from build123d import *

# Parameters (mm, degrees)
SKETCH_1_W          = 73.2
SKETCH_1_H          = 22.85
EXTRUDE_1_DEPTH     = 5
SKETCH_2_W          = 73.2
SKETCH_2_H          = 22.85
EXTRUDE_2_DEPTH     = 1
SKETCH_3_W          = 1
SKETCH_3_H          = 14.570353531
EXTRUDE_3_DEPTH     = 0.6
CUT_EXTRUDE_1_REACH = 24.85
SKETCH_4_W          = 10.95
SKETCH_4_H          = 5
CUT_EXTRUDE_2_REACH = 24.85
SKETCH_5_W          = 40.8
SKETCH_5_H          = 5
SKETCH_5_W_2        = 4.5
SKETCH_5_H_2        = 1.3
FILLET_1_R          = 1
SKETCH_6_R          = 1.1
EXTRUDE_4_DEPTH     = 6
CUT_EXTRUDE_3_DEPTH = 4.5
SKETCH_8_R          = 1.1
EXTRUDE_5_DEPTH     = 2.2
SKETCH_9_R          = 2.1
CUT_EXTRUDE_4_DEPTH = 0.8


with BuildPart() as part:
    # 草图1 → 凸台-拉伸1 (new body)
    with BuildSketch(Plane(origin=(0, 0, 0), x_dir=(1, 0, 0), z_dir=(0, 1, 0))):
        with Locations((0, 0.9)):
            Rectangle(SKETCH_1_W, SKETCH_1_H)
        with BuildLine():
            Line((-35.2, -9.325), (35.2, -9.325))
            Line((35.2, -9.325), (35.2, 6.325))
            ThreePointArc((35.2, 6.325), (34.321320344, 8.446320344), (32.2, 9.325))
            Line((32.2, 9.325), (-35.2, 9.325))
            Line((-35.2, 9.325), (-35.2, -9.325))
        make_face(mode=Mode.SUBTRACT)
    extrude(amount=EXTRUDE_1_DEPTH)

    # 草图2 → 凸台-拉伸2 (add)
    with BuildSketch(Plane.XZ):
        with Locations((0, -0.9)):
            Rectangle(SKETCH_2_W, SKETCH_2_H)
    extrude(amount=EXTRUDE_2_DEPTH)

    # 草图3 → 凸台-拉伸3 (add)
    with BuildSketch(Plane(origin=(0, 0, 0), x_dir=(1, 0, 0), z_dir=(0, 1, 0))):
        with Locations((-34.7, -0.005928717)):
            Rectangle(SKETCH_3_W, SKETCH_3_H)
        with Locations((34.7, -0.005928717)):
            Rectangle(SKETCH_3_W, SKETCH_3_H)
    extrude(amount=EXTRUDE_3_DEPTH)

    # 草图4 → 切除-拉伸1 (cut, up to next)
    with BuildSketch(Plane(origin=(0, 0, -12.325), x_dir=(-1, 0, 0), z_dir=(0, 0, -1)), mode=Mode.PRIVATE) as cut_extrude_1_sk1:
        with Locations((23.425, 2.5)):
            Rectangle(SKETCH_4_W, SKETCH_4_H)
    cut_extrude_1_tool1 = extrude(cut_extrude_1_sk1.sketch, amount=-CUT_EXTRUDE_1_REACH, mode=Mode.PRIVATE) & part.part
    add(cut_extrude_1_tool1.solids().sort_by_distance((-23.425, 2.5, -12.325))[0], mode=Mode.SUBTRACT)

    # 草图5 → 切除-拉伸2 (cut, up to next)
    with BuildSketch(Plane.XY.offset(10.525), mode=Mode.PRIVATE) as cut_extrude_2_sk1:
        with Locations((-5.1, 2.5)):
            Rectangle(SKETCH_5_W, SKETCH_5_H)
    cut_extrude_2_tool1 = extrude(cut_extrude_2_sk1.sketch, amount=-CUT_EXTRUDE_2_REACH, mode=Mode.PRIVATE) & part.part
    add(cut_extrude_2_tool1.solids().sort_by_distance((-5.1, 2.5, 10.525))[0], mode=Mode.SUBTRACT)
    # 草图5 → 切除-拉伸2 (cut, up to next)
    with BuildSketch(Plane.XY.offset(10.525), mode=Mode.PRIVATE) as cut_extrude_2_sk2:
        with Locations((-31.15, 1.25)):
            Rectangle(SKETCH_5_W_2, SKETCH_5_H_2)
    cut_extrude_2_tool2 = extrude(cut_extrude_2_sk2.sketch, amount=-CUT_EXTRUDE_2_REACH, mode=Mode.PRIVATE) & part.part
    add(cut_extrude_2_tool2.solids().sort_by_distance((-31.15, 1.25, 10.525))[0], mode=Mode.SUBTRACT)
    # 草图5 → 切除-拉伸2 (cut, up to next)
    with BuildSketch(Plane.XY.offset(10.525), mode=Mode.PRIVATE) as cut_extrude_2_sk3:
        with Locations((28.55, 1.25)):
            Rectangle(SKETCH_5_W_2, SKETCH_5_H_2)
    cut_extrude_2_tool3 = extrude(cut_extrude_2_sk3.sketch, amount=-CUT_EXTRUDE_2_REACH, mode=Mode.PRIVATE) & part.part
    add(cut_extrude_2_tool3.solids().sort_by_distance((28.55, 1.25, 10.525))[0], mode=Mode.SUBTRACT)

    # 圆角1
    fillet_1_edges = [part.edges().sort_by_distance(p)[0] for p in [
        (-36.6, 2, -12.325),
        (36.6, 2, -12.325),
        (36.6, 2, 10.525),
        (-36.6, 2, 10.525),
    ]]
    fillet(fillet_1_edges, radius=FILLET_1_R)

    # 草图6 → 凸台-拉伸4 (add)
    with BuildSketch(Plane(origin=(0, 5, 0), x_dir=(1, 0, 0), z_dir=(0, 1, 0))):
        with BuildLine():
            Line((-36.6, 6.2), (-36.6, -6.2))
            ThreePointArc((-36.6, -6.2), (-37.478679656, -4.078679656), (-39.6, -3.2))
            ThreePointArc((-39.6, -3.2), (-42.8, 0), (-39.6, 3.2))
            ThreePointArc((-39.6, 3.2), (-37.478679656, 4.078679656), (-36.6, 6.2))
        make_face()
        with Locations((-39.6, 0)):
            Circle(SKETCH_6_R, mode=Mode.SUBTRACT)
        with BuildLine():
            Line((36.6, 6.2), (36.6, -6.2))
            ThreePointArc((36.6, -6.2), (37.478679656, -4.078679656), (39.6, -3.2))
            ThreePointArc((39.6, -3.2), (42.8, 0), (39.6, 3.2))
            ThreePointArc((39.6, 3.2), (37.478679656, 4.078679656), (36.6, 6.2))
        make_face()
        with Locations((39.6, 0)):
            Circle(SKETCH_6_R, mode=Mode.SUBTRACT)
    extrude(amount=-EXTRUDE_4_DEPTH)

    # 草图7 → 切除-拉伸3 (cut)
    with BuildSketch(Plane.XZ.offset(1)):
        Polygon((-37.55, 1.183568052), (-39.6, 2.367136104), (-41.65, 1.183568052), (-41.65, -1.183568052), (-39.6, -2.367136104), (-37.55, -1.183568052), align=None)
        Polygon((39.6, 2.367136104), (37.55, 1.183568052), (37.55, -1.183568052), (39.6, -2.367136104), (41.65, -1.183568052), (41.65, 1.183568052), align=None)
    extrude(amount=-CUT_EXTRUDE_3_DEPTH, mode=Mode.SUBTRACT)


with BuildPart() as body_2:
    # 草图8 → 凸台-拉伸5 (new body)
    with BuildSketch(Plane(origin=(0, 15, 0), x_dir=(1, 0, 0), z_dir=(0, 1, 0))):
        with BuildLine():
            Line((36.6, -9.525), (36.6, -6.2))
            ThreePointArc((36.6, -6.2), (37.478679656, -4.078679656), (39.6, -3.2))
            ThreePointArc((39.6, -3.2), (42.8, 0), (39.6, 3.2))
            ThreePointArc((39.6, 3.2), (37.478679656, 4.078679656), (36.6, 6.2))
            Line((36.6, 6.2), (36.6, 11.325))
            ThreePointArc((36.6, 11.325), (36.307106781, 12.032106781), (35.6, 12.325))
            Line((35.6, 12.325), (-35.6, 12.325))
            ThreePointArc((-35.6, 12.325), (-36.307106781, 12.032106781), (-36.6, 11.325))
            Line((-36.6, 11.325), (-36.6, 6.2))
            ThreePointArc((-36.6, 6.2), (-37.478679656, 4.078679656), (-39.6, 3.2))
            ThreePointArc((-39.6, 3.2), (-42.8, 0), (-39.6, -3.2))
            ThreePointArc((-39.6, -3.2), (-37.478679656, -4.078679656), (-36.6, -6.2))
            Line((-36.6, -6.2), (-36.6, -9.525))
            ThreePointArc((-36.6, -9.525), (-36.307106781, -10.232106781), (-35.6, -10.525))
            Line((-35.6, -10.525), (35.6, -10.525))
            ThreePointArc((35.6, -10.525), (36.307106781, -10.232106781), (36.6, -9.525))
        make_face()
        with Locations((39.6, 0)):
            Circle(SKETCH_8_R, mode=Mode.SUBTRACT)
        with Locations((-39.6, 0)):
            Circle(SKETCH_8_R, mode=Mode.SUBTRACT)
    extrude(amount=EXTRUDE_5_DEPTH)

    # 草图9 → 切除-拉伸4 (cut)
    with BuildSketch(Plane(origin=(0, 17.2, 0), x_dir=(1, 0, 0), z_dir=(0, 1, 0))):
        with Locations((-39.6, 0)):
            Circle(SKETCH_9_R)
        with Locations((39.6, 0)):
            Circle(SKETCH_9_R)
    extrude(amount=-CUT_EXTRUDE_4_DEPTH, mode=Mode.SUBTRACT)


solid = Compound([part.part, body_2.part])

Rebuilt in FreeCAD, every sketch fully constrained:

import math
import FreeCAD as App
import Part
import Sketcher
from FreeCAD import Vector
Q = App.Units.Quantity


def edges_at(feature, points):
    """Names of the edges that pass closest to the given points."""
    edges = feature.Shape.Edges
    near = lambda p: min(range(len(edges)), key=lambda i: edges[i].distToShape(Part.Vertex(*p))[0])
    return sorted({f"Edge{near(p) + 1}" for p in points})

doc = App.newDocument("Part")
body = doc.addObject("PartDesign::Body", "Body")

sketch1 = body.newObject("Sketcher::SketchObject", "Sketch")
sketch1.AttachmentSupport = (doc.getObject("XZ_Plane"), [""])
sketch1.MapMode = "FlatFace"
sketch1.addGeometry(Part.LineSegment(Vector(-36.6, -12.325, 0), Vector(-36.6, 10.525, 0)), False)
sketch1.addGeometry(Part.LineSegment(Vector(-36.6, 10.525, 0), Vector(36.6, 10.525, 0)), False)
sketch1.addGeometry(Part.LineSegment(Vector(36.6, 10.525, 0), Vector(36.6, -12.325, 0)), False)
sketch1.addGeometry(Part.LineSegment(Vector(36.6, -12.325, 0), Vector(-36.6, -12.325, 0)), False)
sketch1.addGeometry(Part.LineSegment(Vector(35.2, 9.325, 0), Vector(-35.2, 9.325, 0)), False)
sketch1.addGeometry(Part.LineSegment(Vector(-35.2, 9.325, 0), Vector(-35.2, -9.325, 0)), False)
sketch1.addGeometry(Part.LineSegment(Vector(-35.2, -9.325, 0), Vector(32.2, -9.325, 0)), False)
sketch1.addGeometry(Part.ArcOfCircle(Part.Circle(Vector(32.2, -6.325, 0), Vector(0, 0, 1), 3), math.radians(-90), math.radians(0)), False)
sketch1.addGeometry(Part.LineSegment(Vector(35.2, -6.325, 0), Vector(35.2, 9.325, 0)), False)
sketch1.addConstraint(Sketcher.Constraint("Coincident", 0, 2, 1, 1))
sketch1.addConstraint(Sketcher.Constraint("Coincident", 1, 2, 2, 1))
sketch1.addConstraint(Sketcher.Constraint("Coincident", 2, 2, 3, 1))
sketch1.addConstraint(Sketcher.Constraint("Coincident", 3, 2, 0, 1))
sketch1.addConstraint(Sketcher.Constraint("Coincident", 4, 2, 5, 1))
sketch1.addConstraint(Sketcher.Constraint("Coincident", 5, 2, 6, 1))
sketch1.addConstraint(Sketcher.Constraint("Tangent", 6, 2, 7, 1))
sketch1.addConstraint(Sketcher.Constraint("Tangent", 7, 2, 8, 1))
sketch1.addConstraint(Sketcher.Constraint("Coincident", 8, 2, 4, 1))
sketch1.addConstraint(Sketcher.Constraint("Vertical", 0))
sketch1.addConstraint(Sketcher.Constraint("Horizontal", 1))
sketch1.addConstraint(Sketcher.Constraint("Vertical", 2))
sketch1.addConstraint(Sketcher.Constraint("Horizontal", 3))
sketch1.addConstraint(Sketcher.Constraint("Horizontal", 4))
sketch1.addConstraint(Sketcher.Constraint("Vertical", 5))
sketch1.addConstraint(Sketcher.Constraint("Horizontal", 6))
sketch1.addConstraint(Sketcher.Constraint("Vertical", 8))
sketch1.addConstraint(Sketcher.Constraint("Symmetric", 5, 2, 8, 2, -1, 1))
sketch1.addConstraint(Sketcher.Constraint("Radius", 7, Q("3 mm")))
sketch1.addConstraint(Sketcher.Constraint("DistanceX", 1, 1, 1, 2, Q("73.2 mm")))
sketch1.addConstraint(Sketcher.Constraint("DistanceX", 4, 2, 4, 1, Q("70.4 mm")))
sketch1.addConstraint(Sketcher.Constraint("DistanceY", 2, 2, 7, 3, Q("6 mm")))
sketch1.addConstraint(Sketcher.Constraint("DistanceY", 0, 1, 0, 2, Q("22.85 mm")))
sketch1.addConstraint(Sketcher.Constraint("DistanceY", 5, 2, 5, 1, Q("18.65 mm")))
sketch1.addConstraint(Sketcher.Constraint("DistanceX", 0, 2, -1, 1, Q("36.6 mm")))
pad1 = body.newObject("PartDesign::Pad", "Pad")
pad1.Profile = sketch1
pad1.Length = 5
pad1.Reversed = True

sketch2 = body.newObject("Sketcher::SketchObject", "Sketch001")
sketch2.AttachmentSupport = (doc.getObject("XZ_Plane"), [""])
sketch2.MapMode = "FlatFace"
sketch2.addGeometry(Part.LineSegment(Vector(-36.6, 10.525, 0), Vector(-36.6, -12.325, 0)), False)
sketch2.addGeometry(Part.LineSegment(Vector(-36.6, -12.325, 0), Vector(36.6, -12.325, 0)), False)
sketch2.addGeometry(Part.LineSegment(Vector(36.6, -12.325, 0), Vector(36.6, 10.525, 0)), False)
sketch2.addGeometry(Part.LineSegment(Vector(36.6, 10.525, 0), Vector(-36.6, 10.525, 0)), False)
sketch2.addConstraint(Sketcher.Constraint("Coincident", 0, 2, 1, 1))
sketch2.addConstraint(Sketcher.Constraint("Coincident", 1, 2, 2, 1))
sketch2.addConstraint(Sketcher.Constraint("Coincident", 2, 2, 3, 1))
sketch2.addConstraint(Sketcher.Constraint("Coincident", 3, 2, 0, 1))
sketch2.addConstraint(Sketcher.Constraint("Vertical", 0))
sketch2.addConstraint(Sketcher.Constraint("Horizontal", 1))
sketch2.addConstraint(Sketcher.Constraint("Vertical", 2))
sketch2.addConstraint(Sketcher.Constraint("Horizontal", 3))
sketch2.addConstraint(Sketcher.Constraint("DistanceX", 1, 1, 1, 2, Q("73.2 mm")))
sketch2.addConstraint(Sketcher.Constraint("DistanceY", 0, 2, 0, 1, Q("22.85 mm")))
sketch2.addConstraint(Sketcher.Constraint("DistanceX", 0, 2, -1, 1, Q("36.6 mm")))
sketch2.addConstraint(Sketcher.Constraint("DistanceY", 0, 2, -1, 1, Q("12.325 mm")))
pad2 = body.newObject("PartDesign::Pad", "Pad001")
pad2.Profile = sketch2
pad2.Length = 1

sketch3 = body.newObject("Sketcher::SketchObject", "Sketch002")
sketch3.AttachmentSupport = (doc.getObject("XZ_Plane"), [""])
sketch3.MapMode = "FlatFace"
sketch3.addGeometry(Part.LineSegment(Vector(-35.2, -7.279248, 0), Vector(-35.2, 7.291105, 0)), False)
sketch3.addGeometry(Part.LineSegment(Vector(-35.2, 7.291105, 0), Vector(-34.2, 7.291105, 0)), False)
sketch3.addGeometry(Part.LineSegment(Vector(-34.2, 7.291105, 0), Vector(-34.2, -7.279248, 0)), False)
sketch3.addGeometry(Part.LineSegment(Vector(-34.2, -7.279248, 0), Vector(-35.2, -7.279248, 0)), False)
sketch3.addGeometry(Part.LineSegment(Vector(34.2, -7.279248, 0), Vector(34.2, 7.291105, 0)), False)
sketch3.addGeometry(Part.LineSegment(Vector(34.2, 7.291105, 0), Vector(35.2, 7.291105, 0)), False)
sketch3.addGeometry(Part.LineSegment(Vector(35.2, 7.291105, 0), Vector(35.2, -7.279248, 0)), False)
sketch3.addGeometry(Part.LineSegment(Vector(35.2, -7.279248, 0), Vector(34.2, -7.279248, 0)), False)
sketch3.addConstraint(Sketcher.Constraint("Coincident", 0, 2, 1, 1))
sketch3.addConstraint(Sketcher.Constraint("Coincident", 1, 2, 2, 1))
sketch3.addConstraint(Sketcher.Constraint("Coincident", 2, 2, 3, 1))
sketch3.addConstraint(Sketcher.Constraint("Coincident", 3, 2, 0, 1))
sketch3.addConstraint(Sketcher.Constraint("Coincident", 4, 2, 5, 1))
sketch3.addConstraint(Sketcher.Constraint("Coincident", 5, 2, 6, 1))
sketch3.addConstraint(Sketcher.Constraint("Coincident", 6, 2, 7, 1))
sketch3.addConstraint(Sketcher.Constraint("Coincident", 7, 2, 4, 1))
sketch3.addConstraint(Sketcher.Constraint("Vertical", 0))
sketch3.addConstraint(Sketcher.Constraint("Horizontal", 1))
sketch3.addConstraint(Sketcher.Constraint("Vertical", 2))
sketch3.addConstraint(Sketcher.Constraint("Horizontal", 3))
sketch3.addConstraint(Sketcher.Constraint("Vertical", 4))
sketch3.addConstraint(Sketcher.Constraint("Horizontal", 5))
sketch3.addConstraint(Sketcher.Constraint("Vertical", 6))
sketch3.addConstraint(Sketcher.Constraint("Horizontal", 7))
sketch3.addConstraint(Sketcher.Constraint("Symmetric", 1, 2, 4, 2, -2))
sketch3.addConstraint(Sketcher.Constraint("Symmetric", 3, 2, 6, 2, -2))
sketch3.addConstraint(Sketcher.Constraint("DistanceX", 1, 1, 1, 2, Q("1 mm")))
sketch3.addConstraint(Sketcher.Constraint("DistanceX", 0, 2, -1, 1, Q("35.2 mm")))
sketch3.addConstraint(Sketcher.Constraint("DistanceY", 0, 1, 0, 2, Q("14.570354 mm")))
sketch3.addConstraint(Sketcher.Constraint("DistanceY", 2, 2, -1, 1, Q("7.279248 mm")))
pad3 = body.newObject("PartDesign::Pad", "Pad002")
pad3.Profile = sketch3
pad3.Length = 0.6
pad3.Reversed = True

sketch4 = body.newObject("Sketcher::SketchObject", "Sketch003")
sketch4.AttachmentSupport = (doc.getObject("XY_Plane"), [""])
sketch4.MapMode = "FlatFace"
sketch4.AttachmentOffset = App.Placement(Vector(0, 0, -12.325), App.Rotation())
sketch4.addGeometry(Part.LineSegment(Vector(-17.95, 5, 0), Vector(-17.95, 0, 0)), False)
sketch4.addGeometry(Part.LineSegment(Vector(-17.95, 0, 0), Vector(-28.9, 0, 0)), False)
sketch4.addGeometry(Part.LineSegment(Vector(-28.9, 0, 0), Vector(-28.9, 5, 0)), False)
sketch4.addGeometry(Part.LineSegment(Vector(-28.9, 5, 0), Vector(-17.95, 5, 0)), False)
sketch4.addConstraint(Sketcher.Constraint("Coincident", 0, 2, 1, 1))
sketch4.addConstraint(Sketcher.Constraint("Coincident", 1, 2, 2, 1))
sketch4.addConstraint(Sketcher.Constraint("Coincident", 2, 2, 3, 1))
sketch4.addConstraint(Sketcher.Constraint("Coincident", 3, 2, 0, 1))
sketch4.addConstraint(Sketcher.Constraint("Vertical", 0))
sketch4.addConstraint(Sketcher.Constraint("Horizontal", 1))
sketch4.addConstraint(Sketcher.Constraint("Vertical", 2))
sketch4.addConstraint(Sketcher.Constraint("Horizontal", 3))
sketch4.addConstraint(Sketcher.Constraint("PointOnObject", 0, 2, -1))
sketch4.addConstraint(Sketcher.Constraint("DistanceY", 0, 2, 0, 1, Q("5 mm")))
sketch4.addConstraint(Sketcher.Constraint("DistanceX", 1, 2, 1, 1, Q("10.95 mm")))
sketch4.addConstraint(Sketcher.Constraint("DistanceX", 1, 2, -1, 1, Q("28.9 mm")))
pocket1 = body.newObject("PartDesign::Pocket", "Pocket")
pocket1.Profile = sketch4
pocket1.Type = "UpToFirst"
pocket1.Reversed = True

sketch5 = body.newObject("Sketcher::SketchObject", "Sketch004")
sketch5.AttachmentSupport = (doc.getObject("XY_Plane"), [""])
sketch5.MapMode = "FlatFace"
sketch5.AttachmentOffset = App.Placement(Vector(0, 0, 10.525), App.Rotation())
sketch5.addGeometry(Part.LineSegment(Vector(-25.5, 5, 0), Vector(-25.5, 0, 0)), False)
sketch5.addGeometry(Part.LineSegment(Vector(-25.5, 0, 0), Vector(15.3, 0, 0)), False)
sketch5.addGeometry(Part.LineSegment(Vector(15.3, 0, 0), Vector(15.3, 5, 0)), False)
sketch5.addGeometry(Part.LineSegment(Vector(15.3, 5, 0), Vector(-25.5, 5, 0)), False)
sketch5.addConstraint(Sketcher.Constraint("Coincident", 0, 2, 1, 1))
sketch5.addConstraint(Sketcher.Constraint("Coincident", 1, 2, 2, 1))
sketch5.addConstraint(Sketcher.Constraint("Coincident", 2, 2, 3, 1))
sketch5.addConstraint(Sketcher.Constraint("Coincident", 3, 2, 0, 1))
sketch5.addConstraint(Sketcher.Constraint("Vertical", 0))
sketch5.addConstraint(Sketcher.Constraint("Horizontal", 1))
sketch5.addConstraint(Sketcher.Constraint("Vertical", 2))
sketch5.addConstraint(Sketcher.Constraint("Horizontal", 3))
sketch5.addConstraint(Sketcher.Constraint("PointOnObject", 0, 2, -1))
sketch5.addConstraint(Sketcher.Constraint("DistanceY", 0, 2, 0, 1, Q("5 mm")))
sketch5.addConstraint(Sketcher.Constraint("DistanceX", 1, 1, 1, 2, Q("40.8 mm")))
sketch5.addConstraint(Sketcher.Constraint("DistanceX", 0, 2, -1, 1, Q("25.5 mm")))
pocket2 = body.newObject("PartDesign::Pocket", "Pocket001")
pocket2.Profile = sketch5
pocket2.Type = "UpToFirst"

sketch6 = body.newObject("Sketcher::SketchObject", "Sketch005")
sketch6.AttachmentSupport = (doc.getObject("XY_Plane"), [""])
sketch6.MapMode = "FlatFace"
sketch6.AttachmentOffset = App.Placement(Vector(0, 0, 10.525), App.Rotation())
sketch6.addGeometry(Part.LineSegment(Vector(-33.4, 1.9, 0), Vector(-33.4, 0.6, 0)), False)
sketch6.addGeometry(Part.LineSegment(Vector(-33.4, 0.6, 0), Vector(-28.9, 0.6, 0)), False)
sketch6.addGeometry(Part.LineSegment(Vector(-28.9, 0.6, 0), Vector(-28.9, 1.9, 0)), False)
sketch6.addGeometry(Part.LineSegment(Vector(-28.9, 1.9, 0), Vector(-33.4, 1.9, 0)), False)
sketch6.addConstraint(Sketcher.Constraint("Coincident", 0, 2, 1, 1))
sketch6.addConstraint(Sketcher.Constraint("Coincident", 1, 2, 2, 1))
sketch6.addConstraint(Sketcher.Constraint("Coincident", 2, 2, 3, 1))
sketch6.addConstraint(Sketcher.Constraint("Coincident", 3, 2, 0, 1))
sketch6.addConstraint(Sketcher.Constraint("Vertical", 0))
sketch6.addConstraint(Sketcher.Constraint("Horizontal", 1))
sketch6.addConstraint(Sketcher.Constraint("Vertical", 2))
sketch6.addConstraint(Sketcher.Constraint("Horizontal", 3))
sketch6.addConstraint(Sketcher.Constraint("DistanceX", 1, 1, 1, 2, Q("4.5 mm")))
sketch6.addConstraint(Sketcher.Constraint("DistanceY", 0, 2, 0, 1, Q("1.3 mm")))
sketch6.addConstraint(Sketcher.Constraint("DistanceX", 0, 2, -1, 1, Q("33.4 mm")))
sketch6.addConstraint(Sketcher.Constraint("DistanceY", -1, 1, 0, 2, Q("0.6 mm")))
pocket3 = body.newObject("PartDesign::Pocket", "Pocket002")
pocket3.Profile = sketch6
pocket3.Type = "UpToFirst"

sketch7 = body.newObject("Sketcher::SketchObject", "Sketch006")
sketch7.AttachmentSupport = (doc.getObject("XY_Plane"), [""])
sketch7.MapMode = "FlatFace"
sketch7.AttachmentOffset = App.Placement(Vector(0, 0, 10.525), App.Rotation())
sketch7.addGeometry(Part.LineSegment(Vector(26.3, 1.9, 0), Vector(26.3, 0.6, 0)), False)
sketch7.addGeometry(Part.LineSegment(Vector(26.3, 0.6, 0), Vector(30.8, 0.6, 0)), False)
sketch7.addGeometry(Part.LineSegment(Vector(30.8, 0.6, 0), Vector(30.8, 1.9, 0)), False)
sketch7.addGeometry(Part.LineSegment(Vector(30.8, 1.9, 0), Vector(26.3, 1.9, 0)), False)
sketch7.addConstraint(Sketcher.Constraint("Coincident", 0, 2, 1, 1))
sketch7.addConstraint(Sketcher.Constraint("Coincident", 1, 2, 2, 1))
sketch7.addConstraint(Sketcher.Constraint("Coincident", 2, 2, 3, 1))
sketch7.addConstraint(Sketcher.Constraint("Coincident", 3, 2, 0, 1))
sketch7.addConstraint(Sketcher.Constraint("Vertical", 0))
sketch7.addConstraint(Sketcher.Constraint("Horizontal", 1))
sketch7.addConstraint(Sketcher.Constraint("Vertical", 2))
sketch7.addConstraint(Sketcher.Constraint("Horizontal", 3))
sketch7.addConstraint(Sketcher.Constraint("DistanceX", 1, 1, 1, 2, Q("4.5 mm")))
sketch7.addConstraint(Sketcher.Constraint("DistanceY", 0, 2, 0, 1, Q("1.3 mm")))
sketch7.addConstraint(Sketcher.Constraint("DistanceX", -1, 1, 0, 2, Q("26.3 mm")))
sketch7.addConstraint(Sketcher.Constraint("DistanceY", -1, 1, 0, 2, Q("0.6 mm")))
pocket4 = body.newObject("PartDesign::Pocket", "Pocket003")
pocket4.Profile = sketch7
pocket4.Type = "UpToFirst"
doc.recompute()

fillet = body.newObject("PartDesign::Fillet", "Fillet")
fillet.Base = (pocket4, edges_at(pocket4, [
    (-36.6, 2, -12.325),
    (36.6, 2, -12.325),
    (36.6, 2, 10.525),
    (-36.6, 2, 10.525),
]))
fillet.Radius = 1

sketch8 = body.newObject("Sketcher::SketchObject", "Sketch007")
sketch8.AttachmentSupport = (doc.getObject("XZ_Plane"), [""])
sketch8.MapMode = "FlatFace"
sketch8.AttachmentOffset = App.Placement(Vector(0, 0, -5), App.Rotation())
sketch8.addGeometry(Part.LineSegment(Vector(-36.6, 6.2, 0), Vector(-36.6, -6.2, 0)), False)
sketch8.addGeometry(Part.ArcOfCircle(Part.Circle(Vector(-39.6, -6.2, 0), Vector(0, 0, 1), 3), math.radians(0), math.radians(90)), False)
sketch8.addGeometry(Part.ArcOfCircle(Part.Circle(Vector(-39.6, 0, 0), Vector(0, 0, 1), 3.2), math.radians(90), math.radians(270)), False)
sketch8.addGeometry(Part.ArcOfCircle(Part.Circle(Vector(-39.6, 6.2, 0), Vector(0, 0, 1), 3), math.radians(-90), math.radians(0)), False)
sketch8.addGeometry(Part.Circle(Vector(-39.6, 0, 0), Vector(0, 0, 1), 1.1), False)
sketch8.addGeometry(Part.LineSegment(Vector(36.6, -6.2, 0), Vector(36.6, 6.2, 0)), False)
sketch8.addGeometry(Part.ArcOfCircle(Part.Circle(Vector(39.6, 6.2, 0), Vector(0, 0, 1), 3), math.radians(180), math.radians(270)), False)
sketch8.addGeometry(Part.ArcOfCircle(Part.Circle(Vector(39.6, 0, 0), Vector(0, 0, 1), 3.2), math.radians(-90), math.radians(90)), False)
sketch8.addGeometry(Part.ArcOfCircle(Part.Circle(Vector(39.6, -6.2, 0), Vector(0, 0, 1), 3), math.radians(90), math.radians(180)), False)
sketch8.addGeometry(Part.Circle(Vector(39.6, 0, 0), Vector(0, 0, 1), 1.1), False)
sketch8.addConstraint(Sketcher.Constraint("Tangent", 0, 2, 1, 1))
sketch8.addConstraint(Sketcher.Constraint("Tangent", 1, 2, 2, 2))
sketch8.addConstraint(Sketcher.Constraint("Tangent", 2, 1, 3, 1))
sketch8.addConstraint(Sketcher.Constraint("Tangent", 3, 2, 0, 1))
sketch8.addConstraint(Sketcher.Constraint("Tangent", 5, 2, 6, 1))
sketch8.addConstraint(Sketcher.Constraint("Tangent", 6, 2, 7, 2))
sketch8.addConstraint(Sketcher.Constraint("Tangent", 7, 1, 8, 1))
sketch8.addConstraint(Sketcher.Constraint("Tangent", 8, 2, 5, 1))
sketch8.addConstraint(Sketcher.Constraint("Vertical", 0))
sketch8.addConstraint(Sketcher.Constraint("Vertical", 5))
sketch8.addConstraint(Sketcher.Constraint("Coincident", 4, 3, 2, 3))
sketch8.addConstraint(Sketcher.Constraint("Coincident", 9, 3, 7, 3))
sketch8.addConstraint(Sketcher.Constraint("Equal", 1, 3))
sketch8.addConstraint(Sketcher.Constraint("Equal", 3, 6))
sketch8.addConstraint(Sketcher.Constraint("Equal", 2, 7))
sketch8.addConstraint(Sketcher.Constraint("Equal", 6, 8))
sketch8.addConstraint(Sketcher.Constraint("Equal", 4, 9))
sketch8.addConstraint(Sketcher.Constraint("Symmetric", 1, 3, 6, 3, -1, 1))
sketch8.addConstraint(Sketcher.Constraint("Symmetric", 2, 3, 7, 3, -2))
sketch8.addConstraint(Sketcher.Constraint("Vertical", 1, 3, 2, 3))
sketch8.addConstraint(Sketcher.Constraint("Radius", 1, Q("3 mm")))
sketch8.addConstraint(Sketcher.Constraint("Diameter", 4, Q("2.2 mm")))
sketch8.addConstraint(Sketcher.Constraint("Radius", 2, Q("3.2 mm")))
sketch8.addConstraint(Sketcher.Constraint("DistanceX", 1, 3, -1, 1, Q("39.6 mm")))
pad4 = body.newObject("PartDesign::Pad", "Pad003")
pad4.Profile = sketch8
pad4.Length = 6

sketch9 = body.newObject("Sketcher::SketchObject", "Sketch008")
sketch9.AttachmentSupport = (doc.getObject("XZ_Plane"), [""])
sketch9.MapMode = "FlatFace"
sketch9.AttachmentOffset = App.Placement(Vector(0, 0, 1), App.Rotation())
sketch9.addGeometry(Part.LineSegment(Vector(-37.55, 1.183568, 0), Vector(-39.6, 2.367136, 0)), False)
sketch9.addGeometry(Part.LineSegment(Vector(-39.6, 2.367136, 0), Vector(-41.65, 1.183568, 0)), False)
sketch9.addGeometry(Part.LineSegment(Vector(-41.65, 1.183568, 0), Vector(-41.65, -1.183568, 0)), False)
sketch9.addGeometry(Part.LineSegment(Vector(-41.65, -1.183568, 0), Vector(-39.6, -2.367136, 0)), False)
sketch9.addGeometry(Part.LineSegment(Vector(-39.6, -2.367136, 0), Vector(-37.55, -1.183568, 0)), False)
sketch9.addGeometry(Part.LineSegment(Vector(-37.55, -1.183568, 0), Vector(-37.55, 1.183568, 0)), False)
sketch9.addGeometry(Part.LineSegment(Vector(39.6, 2.367136, 0), Vector(37.55, 1.183568, 0)), False)
sketch9.addGeometry(Part.LineSegment(Vector(37.55, 1.183568, 0), Vector(37.55, -1.183568, 0)), False)
sketch9.addGeometry(Part.LineSegment(Vector(37.55, -1.183568, 0), Vector(39.6, -2.367136, 0)), False)
sketch9.addGeometry(Part.LineSegment(Vector(39.6, -2.367136, 0), Vector(41.65, -1.183568, 0)), False)
sketch9.addGeometry(Part.LineSegment(Vector(41.65, -1.183568, 0), Vector(41.65, 1.183568, 0)), False)
sketch9.addGeometry(Part.LineSegment(Vector(41.65, 1.183568, 0), Vector(39.6, 2.367136, 0)), False)
sketch9.addConstraint(Sketcher.Constraint("Coincident", 0, 2, 1, 1))
sketch9.addConstraint(Sketcher.Constraint("Coincident", 1, 2, 2, 1))
sketch9.addConstraint(Sketcher.Constraint("Coincident", 2, 2, 3, 1))
sketch9.addConstraint(Sketcher.Constraint("Coincident", 3, 2, 4, 1))
sketch9.addConstraint(Sketcher.Constraint("Coincident", 4, 2, 5, 1))
sketch9.addConstraint(Sketcher.Constraint("Coincident", 5, 2, 0, 1))
sketch9.addConstraint(Sketcher.Constraint("Coincident", 6, 2, 7, 1))
sketch9.addConstraint(Sketcher.Constraint("Coincident", 7, 2, 8, 1))
sketch9.addConstraint(Sketcher.Constraint("Coincident", 8, 2, 9, 1))
sketch9.addConstraint(Sketcher.Constraint("Coincident", 9, 2, 10, 1))
sketch9.addConstraint(Sketcher.Constraint("Coincident", 10, 2, 11, 1))
sketch9.addConstraint(Sketcher.Constraint("Coincident", 11, 2, 6, 1))
sketch9.addConstraint(Sketcher.Constraint("Vertical", 2))
sketch9.addConstraint(Sketcher.Constraint("Vertical", 5))
sketch9.addConstraint(Sketcher.Constraint("Vertical", 7))
sketch9.addConstraint(Sketcher.Constraint("Vertical", 10))
sketch9.addConstraint(Sketcher.Constraint("Symmetric", 4, 2, 6, 2, -1, 1))
sketch9.addConstraint(Sketcher.Constraint("Symmetric", 0, 2, 8, 2, -1, 1))
sketch9.addConstraint(Sketcher.Constraint("Symmetric", 1, 2, 9, 2, -1, 1))
sketch9.addConstraint(Sketcher.Constraint("Symmetric", 3, 2, 11, 2, -1, 1))
sketch9.addConstraint(Sketcher.Constraint("Symmetric", 3, 2, 8, 2, -2))
sketch9.addConstraint(Sketcher.Constraint("Parallel", 0, 3))
sketch9.addConstraint(Sketcher.Constraint("Parallel", 1, 4))
sketch9.addConstraint(Sketcher.Constraint("Parallel", 3, 8))
sketch9.addConstraint(Sketcher.Constraint("Parallel", 8, 11))
sketch9.addConstraint(Sketcher.Constraint("Horizontal", 2, 2, 4, 2))
sketch9.addConstraint(Sketcher.Constraint("Horizontal", 1, 2, 5, 2))
sketch9.addConstraint(Sketcher.Constraint("Angle", 0, Q("150 deg")))
sketch9.addConstraint(Sketcher.Constraint("DistanceX", 0, 2, -1, 1, Q("39.6 mm")))
sketch9.addConstraint(Sketcher.Constraint("DistanceX", 2, 2, 4, 2, Q("4.1 mm")))
sketch9.addConstraint(Sketcher.Constraint("DistanceY", 2, 2, 2, 1, Q("2.367136 mm")))
pocket5 = body.newObject("PartDesign::Pocket", "Pocket004")
pocket5.Profile = sketch9
pocket5.Length = 4.5
body2 = doc.addObject("PartDesign::Body", "Body001")

sketch10 = body2.newObject("Sketcher::SketchObject", "Sketch009")
sketch10.AttachmentSupport = (doc.getObject("XZ_Plane001"), [""])
sketch10.MapMode = "FlatFace"
sketch10.AttachmentOffset = App.Placement(Vector(0, 0, -15), App.Rotation())
sketch10.addGeometry(Part.LineSegment(Vector(36.6, 9.525, 0), Vector(36.6, 6.2, 0)), False)
sketch10.addGeometry(Part.ArcOfCircle(Part.Circle(Vector(39.6, 6.2, 0), Vector(0, 0, 1), 3), math.radians(180), math.radians(270)), False)
sketch10.addGeometry(Part.ArcOfCircle(Part.Circle(Vector(39.6, 0, 0), Vector(0, 0, 1), 3.2), math.radians(-90), math.radians(90)), False)
sketch10.addGeometry(Part.ArcOfCircle(Part.Circle(Vector(39.6, -6.2, 0), Vector(0, 0, 1), 3), math.radians(90), math.radians(180)), False)
sketch10.addGeometry(Part.LineSegment(Vector(36.6, -6.2, 0), Vector(36.6, -11.325, 0)), False)
sketch10.addGeometry(Part.ArcOfCircle(Part.Circle(Vector(35.6, -11.325, 0), Vector(0, 0, 1), 1), math.radians(-90), math.radians(0)), False)
sketch10.addGeometry(Part.LineSegment(Vector(35.6, -12.325, 0), Vector(-35.6, -12.325, 0)), False)
sketch10.addGeometry(Part.ArcOfCircle(Part.Circle(Vector(-35.6, -11.325, 0), Vector(0, 0, 1), 1), math.radians(-180), math.radians(-90)), False)
sketch10.addGeometry(Part.LineSegment(Vector(-36.6, -11.325, 0), Vector(-36.6, -6.2, 0)), False)
sketch10.addGeometry(Part.ArcOfCircle(Part.Circle(Vector(-39.6, -6.2, 0), Vector(0, 0, 1), 3), math.radians(0), math.radians(90)), False)
sketch10.addGeometry(Part.ArcOfCircle(Part.Circle(Vector(-39.6, 0, 0), Vector(0, 0, 1), 3.2), math.radians(90), math.radians(270)), False)
sketch10.addGeometry(Part.ArcOfCircle(Part.Circle(Vector(-39.6, 6.2, 0), Vector(0, 0, 1), 3), math.radians(-90), math.radians(0)), False)
sketch10.addGeometry(Part.LineSegment(Vector(-36.6, 6.2, 0), Vector(-36.6, 9.525, 0)), False)
sketch10.addGeometry(Part.ArcOfCircle(Part.Circle(Vector(-35.6, 9.525, 0), Vector(0, 0, 1), 1), math.radians(90), math.radians(180)), False)
sketch10.addGeometry(Part.LineSegment(Vector(-35.6, 10.525, 0), Vector(35.6, 10.525, 0)), False)
sketch10.addGeometry(Part.ArcOfCircle(Part.Circle(Vector(35.6, 9.525, 0), Vector(0, 0, 1), 1), math.radians(0), math.radians(90)), False)
sketch10.addGeometry(Part.Circle(Vector(-39.6, 0, 0), Vector(0, 0, 1), 1.1), False)
sketch10.addGeometry(Part.Circle(Vector(39.6, 0, 0), Vector(0, 0, 1), 1.1), False)
sketch10.addConstraint(Sketcher.Constraint("Tangent", 0, 2, 1, 1))
sketch10.addConstraint(Sketcher.Constraint("Tangent", 1, 2, 2, 2))
sketch10.addConstraint(Sketcher.Constraint("Tangent", 2, 1, 3, 1))
sketch10.addConstraint(Sketcher.Constraint("Tangent", 3, 2, 4, 1))
sketch10.addConstraint(Sketcher.Constraint("Tangent", 4, 2, 5, 2))
sketch10.addConstraint(Sketcher.Constraint("Tangent", 5, 1, 6, 1))
sketch10.addConstraint(Sketcher.Constraint("Tangent", 6, 2, 7, 2))
sketch10.addConstraint(Sketcher.Constraint("Tangent", 7, 1, 8, 1))
sketch10.addConstraint(Sketcher.Constraint("Tangent", 8, 2, 9, 1))
sketch10.addConstraint(Sketcher.Constraint("Tangent", 9, 2, 10, 2))
sketch10.addConstraint(Sketcher.Constraint("Tangent", 10, 1, 11, 1))
sketch10.addConstraint(Sketcher.Constraint("Tangent", 11, 2, 12, 1))
sketch10.addConstraint(Sketcher.Constraint("Tangent", 12, 2, 13, 2))
sketch10.addConstraint(Sketcher.Constraint("Tangent", 13, 1, 14, 1))
sketch10.addConstraint(Sketcher.Constraint("Tangent", 14, 2, 15, 2))
sketch10.addConstraint(Sketcher.Constraint("Tangent", 15, 1, 0, 1))
sketch10.addConstraint(Sketcher.Constraint("Vertical", 0))
sketch10.addConstraint(Sketcher.Constraint("Vertical", 4))
sketch10.addConstraint(Sketcher.Constraint("Horizontal", 6))
sketch10.addConstraint(Sketcher.Constraint("Vertical", 8))
sketch10.addConstraint(Sketcher.Constraint("Vertical", 12))
sketch10.addConstraint(Sketcher.Constraint("Horizontal", 14))
sketch10.addConstraint(Sketcher.Constraint("Coincident", 16, 3, 10, 3))
sketch10.addConstraint(Sketcher.Constraint("Coincident", 17, 3, 2, 3))
sketch10.addConstraint(Sketcher.Constraint("Equal", 1, 3))
sketch10.addConstraint(Sketcher.Constraint("Equal", 5, 7))
sketch10.addConstraint(Sketcher.Constraint("Equal", 3, 9))
sketch10.addConstraint(Sketcher.Constraint("Equal", 2, 10))
sketch10.addConstraint(Sketcher.Constraint("Equal", 9, 11))
sketch10.addConstraint(Sketcher.Constraint("Equal", 7, 13))
sketch10.addConstraint(Sketcher.Constraint("Equal", 13, 15))
sketch10.addConstraint(Sketcher.Constraint("Equal", 16, 17))
sketch10.addConstraint(Sketcher.Constraint("Symmetric", 1, 3, 9, 3, -1, 1))
sketch10.addConstraint(Sketcher.Constraint("Symmetric", 3, 3, 9, 3, -2))
sketch10.addConstraint(Sketcher.Constraint("Vertical", 1, 3, 2, 3))
sketch10.addConstraint(Sketcher.Constraint("Vertical", 9, 3, 10, 3))
sketch10.addConstraint(Sketcher.Constraint("Vertical", 10, 3, 11, 3))
sketch10.addConstraint(Sketcher.Constraint("Radius", 1, Q("3 mm")))
sketch10.addConstraint(Sketcher.Constraint("Radius", 5, Q("1 mm")))
sketch10.addConstraint(Sketcher.Constraint("Diameter", 16, Q("2.2 mm")))
sketch10.addConstraint(Sketcher.Constraint("Radius", 2, Q("3.2 mm")))
sketch10.addConstraint(Sketcher.Constraint("DistanceX", 6, 2, 6, 1, Q("71.2 mm")))
sketch10.addConstraint(Sketcher.Constraint("DistanceY", 0, 2, 0, 1, Q("3.325 mm")))
sketch10.addConstraint(Sketcher.Constraint("DistanceY", 4, 2, 4, 1, Q("5.125 mm")))
pad5 = body2.newObject("PartDesign::Pad", "Pad004")
pad5.Profile = sketch10
pad5.Length = 2.2
pad5.Reversed = True

sketch11 = body2.newObject("Sketcher::SketchObject", "Sketch010")
sketch11.AttachmentSupport = (doc.getObject("XZ_Plane001"), [""])
sketch11.MapMode = "FlatFace"
sketch11.AttachmentOffset = App.Placement(Vector(0, 0, -17.2), App.Rotation())
sketch11.addGeometry(Part.Circle(Vector(-39.6, 0, 0), Vector(0, 0, 1), 2.1), False)
sketch11.addGeometry(Part.Circle(Vector(39.6, 0, 0), Vector(0, 0, 1), 2.1), False)
sketch11.addConstraint(Sketcher.Constraint("Equal", 0, 1))
sketch11.addConstraint(Sketcher.Constraint("Symmetric", 0, 3, 1, 3, -1, 1))
sketch11.addConstraint(Sketcher.Constraint("PointOnObject", 0, 3, -1))
sketch11.addConstraint(Sketcher.Constraint("Diameter", 0, Q("4.2 mm")))
sketch11.addConstraint(Sketcher.Constraint("DistanceX", 0, 3, -1, 1, Q("39.6 mm")))
pocket6 = body2.newObject("PartDesign::Pocket", "Pocket005")
pocket6.Profile = sketch11
pocket6.Length = 0.8
pocket6.Reversed = True

doc.recompute()
